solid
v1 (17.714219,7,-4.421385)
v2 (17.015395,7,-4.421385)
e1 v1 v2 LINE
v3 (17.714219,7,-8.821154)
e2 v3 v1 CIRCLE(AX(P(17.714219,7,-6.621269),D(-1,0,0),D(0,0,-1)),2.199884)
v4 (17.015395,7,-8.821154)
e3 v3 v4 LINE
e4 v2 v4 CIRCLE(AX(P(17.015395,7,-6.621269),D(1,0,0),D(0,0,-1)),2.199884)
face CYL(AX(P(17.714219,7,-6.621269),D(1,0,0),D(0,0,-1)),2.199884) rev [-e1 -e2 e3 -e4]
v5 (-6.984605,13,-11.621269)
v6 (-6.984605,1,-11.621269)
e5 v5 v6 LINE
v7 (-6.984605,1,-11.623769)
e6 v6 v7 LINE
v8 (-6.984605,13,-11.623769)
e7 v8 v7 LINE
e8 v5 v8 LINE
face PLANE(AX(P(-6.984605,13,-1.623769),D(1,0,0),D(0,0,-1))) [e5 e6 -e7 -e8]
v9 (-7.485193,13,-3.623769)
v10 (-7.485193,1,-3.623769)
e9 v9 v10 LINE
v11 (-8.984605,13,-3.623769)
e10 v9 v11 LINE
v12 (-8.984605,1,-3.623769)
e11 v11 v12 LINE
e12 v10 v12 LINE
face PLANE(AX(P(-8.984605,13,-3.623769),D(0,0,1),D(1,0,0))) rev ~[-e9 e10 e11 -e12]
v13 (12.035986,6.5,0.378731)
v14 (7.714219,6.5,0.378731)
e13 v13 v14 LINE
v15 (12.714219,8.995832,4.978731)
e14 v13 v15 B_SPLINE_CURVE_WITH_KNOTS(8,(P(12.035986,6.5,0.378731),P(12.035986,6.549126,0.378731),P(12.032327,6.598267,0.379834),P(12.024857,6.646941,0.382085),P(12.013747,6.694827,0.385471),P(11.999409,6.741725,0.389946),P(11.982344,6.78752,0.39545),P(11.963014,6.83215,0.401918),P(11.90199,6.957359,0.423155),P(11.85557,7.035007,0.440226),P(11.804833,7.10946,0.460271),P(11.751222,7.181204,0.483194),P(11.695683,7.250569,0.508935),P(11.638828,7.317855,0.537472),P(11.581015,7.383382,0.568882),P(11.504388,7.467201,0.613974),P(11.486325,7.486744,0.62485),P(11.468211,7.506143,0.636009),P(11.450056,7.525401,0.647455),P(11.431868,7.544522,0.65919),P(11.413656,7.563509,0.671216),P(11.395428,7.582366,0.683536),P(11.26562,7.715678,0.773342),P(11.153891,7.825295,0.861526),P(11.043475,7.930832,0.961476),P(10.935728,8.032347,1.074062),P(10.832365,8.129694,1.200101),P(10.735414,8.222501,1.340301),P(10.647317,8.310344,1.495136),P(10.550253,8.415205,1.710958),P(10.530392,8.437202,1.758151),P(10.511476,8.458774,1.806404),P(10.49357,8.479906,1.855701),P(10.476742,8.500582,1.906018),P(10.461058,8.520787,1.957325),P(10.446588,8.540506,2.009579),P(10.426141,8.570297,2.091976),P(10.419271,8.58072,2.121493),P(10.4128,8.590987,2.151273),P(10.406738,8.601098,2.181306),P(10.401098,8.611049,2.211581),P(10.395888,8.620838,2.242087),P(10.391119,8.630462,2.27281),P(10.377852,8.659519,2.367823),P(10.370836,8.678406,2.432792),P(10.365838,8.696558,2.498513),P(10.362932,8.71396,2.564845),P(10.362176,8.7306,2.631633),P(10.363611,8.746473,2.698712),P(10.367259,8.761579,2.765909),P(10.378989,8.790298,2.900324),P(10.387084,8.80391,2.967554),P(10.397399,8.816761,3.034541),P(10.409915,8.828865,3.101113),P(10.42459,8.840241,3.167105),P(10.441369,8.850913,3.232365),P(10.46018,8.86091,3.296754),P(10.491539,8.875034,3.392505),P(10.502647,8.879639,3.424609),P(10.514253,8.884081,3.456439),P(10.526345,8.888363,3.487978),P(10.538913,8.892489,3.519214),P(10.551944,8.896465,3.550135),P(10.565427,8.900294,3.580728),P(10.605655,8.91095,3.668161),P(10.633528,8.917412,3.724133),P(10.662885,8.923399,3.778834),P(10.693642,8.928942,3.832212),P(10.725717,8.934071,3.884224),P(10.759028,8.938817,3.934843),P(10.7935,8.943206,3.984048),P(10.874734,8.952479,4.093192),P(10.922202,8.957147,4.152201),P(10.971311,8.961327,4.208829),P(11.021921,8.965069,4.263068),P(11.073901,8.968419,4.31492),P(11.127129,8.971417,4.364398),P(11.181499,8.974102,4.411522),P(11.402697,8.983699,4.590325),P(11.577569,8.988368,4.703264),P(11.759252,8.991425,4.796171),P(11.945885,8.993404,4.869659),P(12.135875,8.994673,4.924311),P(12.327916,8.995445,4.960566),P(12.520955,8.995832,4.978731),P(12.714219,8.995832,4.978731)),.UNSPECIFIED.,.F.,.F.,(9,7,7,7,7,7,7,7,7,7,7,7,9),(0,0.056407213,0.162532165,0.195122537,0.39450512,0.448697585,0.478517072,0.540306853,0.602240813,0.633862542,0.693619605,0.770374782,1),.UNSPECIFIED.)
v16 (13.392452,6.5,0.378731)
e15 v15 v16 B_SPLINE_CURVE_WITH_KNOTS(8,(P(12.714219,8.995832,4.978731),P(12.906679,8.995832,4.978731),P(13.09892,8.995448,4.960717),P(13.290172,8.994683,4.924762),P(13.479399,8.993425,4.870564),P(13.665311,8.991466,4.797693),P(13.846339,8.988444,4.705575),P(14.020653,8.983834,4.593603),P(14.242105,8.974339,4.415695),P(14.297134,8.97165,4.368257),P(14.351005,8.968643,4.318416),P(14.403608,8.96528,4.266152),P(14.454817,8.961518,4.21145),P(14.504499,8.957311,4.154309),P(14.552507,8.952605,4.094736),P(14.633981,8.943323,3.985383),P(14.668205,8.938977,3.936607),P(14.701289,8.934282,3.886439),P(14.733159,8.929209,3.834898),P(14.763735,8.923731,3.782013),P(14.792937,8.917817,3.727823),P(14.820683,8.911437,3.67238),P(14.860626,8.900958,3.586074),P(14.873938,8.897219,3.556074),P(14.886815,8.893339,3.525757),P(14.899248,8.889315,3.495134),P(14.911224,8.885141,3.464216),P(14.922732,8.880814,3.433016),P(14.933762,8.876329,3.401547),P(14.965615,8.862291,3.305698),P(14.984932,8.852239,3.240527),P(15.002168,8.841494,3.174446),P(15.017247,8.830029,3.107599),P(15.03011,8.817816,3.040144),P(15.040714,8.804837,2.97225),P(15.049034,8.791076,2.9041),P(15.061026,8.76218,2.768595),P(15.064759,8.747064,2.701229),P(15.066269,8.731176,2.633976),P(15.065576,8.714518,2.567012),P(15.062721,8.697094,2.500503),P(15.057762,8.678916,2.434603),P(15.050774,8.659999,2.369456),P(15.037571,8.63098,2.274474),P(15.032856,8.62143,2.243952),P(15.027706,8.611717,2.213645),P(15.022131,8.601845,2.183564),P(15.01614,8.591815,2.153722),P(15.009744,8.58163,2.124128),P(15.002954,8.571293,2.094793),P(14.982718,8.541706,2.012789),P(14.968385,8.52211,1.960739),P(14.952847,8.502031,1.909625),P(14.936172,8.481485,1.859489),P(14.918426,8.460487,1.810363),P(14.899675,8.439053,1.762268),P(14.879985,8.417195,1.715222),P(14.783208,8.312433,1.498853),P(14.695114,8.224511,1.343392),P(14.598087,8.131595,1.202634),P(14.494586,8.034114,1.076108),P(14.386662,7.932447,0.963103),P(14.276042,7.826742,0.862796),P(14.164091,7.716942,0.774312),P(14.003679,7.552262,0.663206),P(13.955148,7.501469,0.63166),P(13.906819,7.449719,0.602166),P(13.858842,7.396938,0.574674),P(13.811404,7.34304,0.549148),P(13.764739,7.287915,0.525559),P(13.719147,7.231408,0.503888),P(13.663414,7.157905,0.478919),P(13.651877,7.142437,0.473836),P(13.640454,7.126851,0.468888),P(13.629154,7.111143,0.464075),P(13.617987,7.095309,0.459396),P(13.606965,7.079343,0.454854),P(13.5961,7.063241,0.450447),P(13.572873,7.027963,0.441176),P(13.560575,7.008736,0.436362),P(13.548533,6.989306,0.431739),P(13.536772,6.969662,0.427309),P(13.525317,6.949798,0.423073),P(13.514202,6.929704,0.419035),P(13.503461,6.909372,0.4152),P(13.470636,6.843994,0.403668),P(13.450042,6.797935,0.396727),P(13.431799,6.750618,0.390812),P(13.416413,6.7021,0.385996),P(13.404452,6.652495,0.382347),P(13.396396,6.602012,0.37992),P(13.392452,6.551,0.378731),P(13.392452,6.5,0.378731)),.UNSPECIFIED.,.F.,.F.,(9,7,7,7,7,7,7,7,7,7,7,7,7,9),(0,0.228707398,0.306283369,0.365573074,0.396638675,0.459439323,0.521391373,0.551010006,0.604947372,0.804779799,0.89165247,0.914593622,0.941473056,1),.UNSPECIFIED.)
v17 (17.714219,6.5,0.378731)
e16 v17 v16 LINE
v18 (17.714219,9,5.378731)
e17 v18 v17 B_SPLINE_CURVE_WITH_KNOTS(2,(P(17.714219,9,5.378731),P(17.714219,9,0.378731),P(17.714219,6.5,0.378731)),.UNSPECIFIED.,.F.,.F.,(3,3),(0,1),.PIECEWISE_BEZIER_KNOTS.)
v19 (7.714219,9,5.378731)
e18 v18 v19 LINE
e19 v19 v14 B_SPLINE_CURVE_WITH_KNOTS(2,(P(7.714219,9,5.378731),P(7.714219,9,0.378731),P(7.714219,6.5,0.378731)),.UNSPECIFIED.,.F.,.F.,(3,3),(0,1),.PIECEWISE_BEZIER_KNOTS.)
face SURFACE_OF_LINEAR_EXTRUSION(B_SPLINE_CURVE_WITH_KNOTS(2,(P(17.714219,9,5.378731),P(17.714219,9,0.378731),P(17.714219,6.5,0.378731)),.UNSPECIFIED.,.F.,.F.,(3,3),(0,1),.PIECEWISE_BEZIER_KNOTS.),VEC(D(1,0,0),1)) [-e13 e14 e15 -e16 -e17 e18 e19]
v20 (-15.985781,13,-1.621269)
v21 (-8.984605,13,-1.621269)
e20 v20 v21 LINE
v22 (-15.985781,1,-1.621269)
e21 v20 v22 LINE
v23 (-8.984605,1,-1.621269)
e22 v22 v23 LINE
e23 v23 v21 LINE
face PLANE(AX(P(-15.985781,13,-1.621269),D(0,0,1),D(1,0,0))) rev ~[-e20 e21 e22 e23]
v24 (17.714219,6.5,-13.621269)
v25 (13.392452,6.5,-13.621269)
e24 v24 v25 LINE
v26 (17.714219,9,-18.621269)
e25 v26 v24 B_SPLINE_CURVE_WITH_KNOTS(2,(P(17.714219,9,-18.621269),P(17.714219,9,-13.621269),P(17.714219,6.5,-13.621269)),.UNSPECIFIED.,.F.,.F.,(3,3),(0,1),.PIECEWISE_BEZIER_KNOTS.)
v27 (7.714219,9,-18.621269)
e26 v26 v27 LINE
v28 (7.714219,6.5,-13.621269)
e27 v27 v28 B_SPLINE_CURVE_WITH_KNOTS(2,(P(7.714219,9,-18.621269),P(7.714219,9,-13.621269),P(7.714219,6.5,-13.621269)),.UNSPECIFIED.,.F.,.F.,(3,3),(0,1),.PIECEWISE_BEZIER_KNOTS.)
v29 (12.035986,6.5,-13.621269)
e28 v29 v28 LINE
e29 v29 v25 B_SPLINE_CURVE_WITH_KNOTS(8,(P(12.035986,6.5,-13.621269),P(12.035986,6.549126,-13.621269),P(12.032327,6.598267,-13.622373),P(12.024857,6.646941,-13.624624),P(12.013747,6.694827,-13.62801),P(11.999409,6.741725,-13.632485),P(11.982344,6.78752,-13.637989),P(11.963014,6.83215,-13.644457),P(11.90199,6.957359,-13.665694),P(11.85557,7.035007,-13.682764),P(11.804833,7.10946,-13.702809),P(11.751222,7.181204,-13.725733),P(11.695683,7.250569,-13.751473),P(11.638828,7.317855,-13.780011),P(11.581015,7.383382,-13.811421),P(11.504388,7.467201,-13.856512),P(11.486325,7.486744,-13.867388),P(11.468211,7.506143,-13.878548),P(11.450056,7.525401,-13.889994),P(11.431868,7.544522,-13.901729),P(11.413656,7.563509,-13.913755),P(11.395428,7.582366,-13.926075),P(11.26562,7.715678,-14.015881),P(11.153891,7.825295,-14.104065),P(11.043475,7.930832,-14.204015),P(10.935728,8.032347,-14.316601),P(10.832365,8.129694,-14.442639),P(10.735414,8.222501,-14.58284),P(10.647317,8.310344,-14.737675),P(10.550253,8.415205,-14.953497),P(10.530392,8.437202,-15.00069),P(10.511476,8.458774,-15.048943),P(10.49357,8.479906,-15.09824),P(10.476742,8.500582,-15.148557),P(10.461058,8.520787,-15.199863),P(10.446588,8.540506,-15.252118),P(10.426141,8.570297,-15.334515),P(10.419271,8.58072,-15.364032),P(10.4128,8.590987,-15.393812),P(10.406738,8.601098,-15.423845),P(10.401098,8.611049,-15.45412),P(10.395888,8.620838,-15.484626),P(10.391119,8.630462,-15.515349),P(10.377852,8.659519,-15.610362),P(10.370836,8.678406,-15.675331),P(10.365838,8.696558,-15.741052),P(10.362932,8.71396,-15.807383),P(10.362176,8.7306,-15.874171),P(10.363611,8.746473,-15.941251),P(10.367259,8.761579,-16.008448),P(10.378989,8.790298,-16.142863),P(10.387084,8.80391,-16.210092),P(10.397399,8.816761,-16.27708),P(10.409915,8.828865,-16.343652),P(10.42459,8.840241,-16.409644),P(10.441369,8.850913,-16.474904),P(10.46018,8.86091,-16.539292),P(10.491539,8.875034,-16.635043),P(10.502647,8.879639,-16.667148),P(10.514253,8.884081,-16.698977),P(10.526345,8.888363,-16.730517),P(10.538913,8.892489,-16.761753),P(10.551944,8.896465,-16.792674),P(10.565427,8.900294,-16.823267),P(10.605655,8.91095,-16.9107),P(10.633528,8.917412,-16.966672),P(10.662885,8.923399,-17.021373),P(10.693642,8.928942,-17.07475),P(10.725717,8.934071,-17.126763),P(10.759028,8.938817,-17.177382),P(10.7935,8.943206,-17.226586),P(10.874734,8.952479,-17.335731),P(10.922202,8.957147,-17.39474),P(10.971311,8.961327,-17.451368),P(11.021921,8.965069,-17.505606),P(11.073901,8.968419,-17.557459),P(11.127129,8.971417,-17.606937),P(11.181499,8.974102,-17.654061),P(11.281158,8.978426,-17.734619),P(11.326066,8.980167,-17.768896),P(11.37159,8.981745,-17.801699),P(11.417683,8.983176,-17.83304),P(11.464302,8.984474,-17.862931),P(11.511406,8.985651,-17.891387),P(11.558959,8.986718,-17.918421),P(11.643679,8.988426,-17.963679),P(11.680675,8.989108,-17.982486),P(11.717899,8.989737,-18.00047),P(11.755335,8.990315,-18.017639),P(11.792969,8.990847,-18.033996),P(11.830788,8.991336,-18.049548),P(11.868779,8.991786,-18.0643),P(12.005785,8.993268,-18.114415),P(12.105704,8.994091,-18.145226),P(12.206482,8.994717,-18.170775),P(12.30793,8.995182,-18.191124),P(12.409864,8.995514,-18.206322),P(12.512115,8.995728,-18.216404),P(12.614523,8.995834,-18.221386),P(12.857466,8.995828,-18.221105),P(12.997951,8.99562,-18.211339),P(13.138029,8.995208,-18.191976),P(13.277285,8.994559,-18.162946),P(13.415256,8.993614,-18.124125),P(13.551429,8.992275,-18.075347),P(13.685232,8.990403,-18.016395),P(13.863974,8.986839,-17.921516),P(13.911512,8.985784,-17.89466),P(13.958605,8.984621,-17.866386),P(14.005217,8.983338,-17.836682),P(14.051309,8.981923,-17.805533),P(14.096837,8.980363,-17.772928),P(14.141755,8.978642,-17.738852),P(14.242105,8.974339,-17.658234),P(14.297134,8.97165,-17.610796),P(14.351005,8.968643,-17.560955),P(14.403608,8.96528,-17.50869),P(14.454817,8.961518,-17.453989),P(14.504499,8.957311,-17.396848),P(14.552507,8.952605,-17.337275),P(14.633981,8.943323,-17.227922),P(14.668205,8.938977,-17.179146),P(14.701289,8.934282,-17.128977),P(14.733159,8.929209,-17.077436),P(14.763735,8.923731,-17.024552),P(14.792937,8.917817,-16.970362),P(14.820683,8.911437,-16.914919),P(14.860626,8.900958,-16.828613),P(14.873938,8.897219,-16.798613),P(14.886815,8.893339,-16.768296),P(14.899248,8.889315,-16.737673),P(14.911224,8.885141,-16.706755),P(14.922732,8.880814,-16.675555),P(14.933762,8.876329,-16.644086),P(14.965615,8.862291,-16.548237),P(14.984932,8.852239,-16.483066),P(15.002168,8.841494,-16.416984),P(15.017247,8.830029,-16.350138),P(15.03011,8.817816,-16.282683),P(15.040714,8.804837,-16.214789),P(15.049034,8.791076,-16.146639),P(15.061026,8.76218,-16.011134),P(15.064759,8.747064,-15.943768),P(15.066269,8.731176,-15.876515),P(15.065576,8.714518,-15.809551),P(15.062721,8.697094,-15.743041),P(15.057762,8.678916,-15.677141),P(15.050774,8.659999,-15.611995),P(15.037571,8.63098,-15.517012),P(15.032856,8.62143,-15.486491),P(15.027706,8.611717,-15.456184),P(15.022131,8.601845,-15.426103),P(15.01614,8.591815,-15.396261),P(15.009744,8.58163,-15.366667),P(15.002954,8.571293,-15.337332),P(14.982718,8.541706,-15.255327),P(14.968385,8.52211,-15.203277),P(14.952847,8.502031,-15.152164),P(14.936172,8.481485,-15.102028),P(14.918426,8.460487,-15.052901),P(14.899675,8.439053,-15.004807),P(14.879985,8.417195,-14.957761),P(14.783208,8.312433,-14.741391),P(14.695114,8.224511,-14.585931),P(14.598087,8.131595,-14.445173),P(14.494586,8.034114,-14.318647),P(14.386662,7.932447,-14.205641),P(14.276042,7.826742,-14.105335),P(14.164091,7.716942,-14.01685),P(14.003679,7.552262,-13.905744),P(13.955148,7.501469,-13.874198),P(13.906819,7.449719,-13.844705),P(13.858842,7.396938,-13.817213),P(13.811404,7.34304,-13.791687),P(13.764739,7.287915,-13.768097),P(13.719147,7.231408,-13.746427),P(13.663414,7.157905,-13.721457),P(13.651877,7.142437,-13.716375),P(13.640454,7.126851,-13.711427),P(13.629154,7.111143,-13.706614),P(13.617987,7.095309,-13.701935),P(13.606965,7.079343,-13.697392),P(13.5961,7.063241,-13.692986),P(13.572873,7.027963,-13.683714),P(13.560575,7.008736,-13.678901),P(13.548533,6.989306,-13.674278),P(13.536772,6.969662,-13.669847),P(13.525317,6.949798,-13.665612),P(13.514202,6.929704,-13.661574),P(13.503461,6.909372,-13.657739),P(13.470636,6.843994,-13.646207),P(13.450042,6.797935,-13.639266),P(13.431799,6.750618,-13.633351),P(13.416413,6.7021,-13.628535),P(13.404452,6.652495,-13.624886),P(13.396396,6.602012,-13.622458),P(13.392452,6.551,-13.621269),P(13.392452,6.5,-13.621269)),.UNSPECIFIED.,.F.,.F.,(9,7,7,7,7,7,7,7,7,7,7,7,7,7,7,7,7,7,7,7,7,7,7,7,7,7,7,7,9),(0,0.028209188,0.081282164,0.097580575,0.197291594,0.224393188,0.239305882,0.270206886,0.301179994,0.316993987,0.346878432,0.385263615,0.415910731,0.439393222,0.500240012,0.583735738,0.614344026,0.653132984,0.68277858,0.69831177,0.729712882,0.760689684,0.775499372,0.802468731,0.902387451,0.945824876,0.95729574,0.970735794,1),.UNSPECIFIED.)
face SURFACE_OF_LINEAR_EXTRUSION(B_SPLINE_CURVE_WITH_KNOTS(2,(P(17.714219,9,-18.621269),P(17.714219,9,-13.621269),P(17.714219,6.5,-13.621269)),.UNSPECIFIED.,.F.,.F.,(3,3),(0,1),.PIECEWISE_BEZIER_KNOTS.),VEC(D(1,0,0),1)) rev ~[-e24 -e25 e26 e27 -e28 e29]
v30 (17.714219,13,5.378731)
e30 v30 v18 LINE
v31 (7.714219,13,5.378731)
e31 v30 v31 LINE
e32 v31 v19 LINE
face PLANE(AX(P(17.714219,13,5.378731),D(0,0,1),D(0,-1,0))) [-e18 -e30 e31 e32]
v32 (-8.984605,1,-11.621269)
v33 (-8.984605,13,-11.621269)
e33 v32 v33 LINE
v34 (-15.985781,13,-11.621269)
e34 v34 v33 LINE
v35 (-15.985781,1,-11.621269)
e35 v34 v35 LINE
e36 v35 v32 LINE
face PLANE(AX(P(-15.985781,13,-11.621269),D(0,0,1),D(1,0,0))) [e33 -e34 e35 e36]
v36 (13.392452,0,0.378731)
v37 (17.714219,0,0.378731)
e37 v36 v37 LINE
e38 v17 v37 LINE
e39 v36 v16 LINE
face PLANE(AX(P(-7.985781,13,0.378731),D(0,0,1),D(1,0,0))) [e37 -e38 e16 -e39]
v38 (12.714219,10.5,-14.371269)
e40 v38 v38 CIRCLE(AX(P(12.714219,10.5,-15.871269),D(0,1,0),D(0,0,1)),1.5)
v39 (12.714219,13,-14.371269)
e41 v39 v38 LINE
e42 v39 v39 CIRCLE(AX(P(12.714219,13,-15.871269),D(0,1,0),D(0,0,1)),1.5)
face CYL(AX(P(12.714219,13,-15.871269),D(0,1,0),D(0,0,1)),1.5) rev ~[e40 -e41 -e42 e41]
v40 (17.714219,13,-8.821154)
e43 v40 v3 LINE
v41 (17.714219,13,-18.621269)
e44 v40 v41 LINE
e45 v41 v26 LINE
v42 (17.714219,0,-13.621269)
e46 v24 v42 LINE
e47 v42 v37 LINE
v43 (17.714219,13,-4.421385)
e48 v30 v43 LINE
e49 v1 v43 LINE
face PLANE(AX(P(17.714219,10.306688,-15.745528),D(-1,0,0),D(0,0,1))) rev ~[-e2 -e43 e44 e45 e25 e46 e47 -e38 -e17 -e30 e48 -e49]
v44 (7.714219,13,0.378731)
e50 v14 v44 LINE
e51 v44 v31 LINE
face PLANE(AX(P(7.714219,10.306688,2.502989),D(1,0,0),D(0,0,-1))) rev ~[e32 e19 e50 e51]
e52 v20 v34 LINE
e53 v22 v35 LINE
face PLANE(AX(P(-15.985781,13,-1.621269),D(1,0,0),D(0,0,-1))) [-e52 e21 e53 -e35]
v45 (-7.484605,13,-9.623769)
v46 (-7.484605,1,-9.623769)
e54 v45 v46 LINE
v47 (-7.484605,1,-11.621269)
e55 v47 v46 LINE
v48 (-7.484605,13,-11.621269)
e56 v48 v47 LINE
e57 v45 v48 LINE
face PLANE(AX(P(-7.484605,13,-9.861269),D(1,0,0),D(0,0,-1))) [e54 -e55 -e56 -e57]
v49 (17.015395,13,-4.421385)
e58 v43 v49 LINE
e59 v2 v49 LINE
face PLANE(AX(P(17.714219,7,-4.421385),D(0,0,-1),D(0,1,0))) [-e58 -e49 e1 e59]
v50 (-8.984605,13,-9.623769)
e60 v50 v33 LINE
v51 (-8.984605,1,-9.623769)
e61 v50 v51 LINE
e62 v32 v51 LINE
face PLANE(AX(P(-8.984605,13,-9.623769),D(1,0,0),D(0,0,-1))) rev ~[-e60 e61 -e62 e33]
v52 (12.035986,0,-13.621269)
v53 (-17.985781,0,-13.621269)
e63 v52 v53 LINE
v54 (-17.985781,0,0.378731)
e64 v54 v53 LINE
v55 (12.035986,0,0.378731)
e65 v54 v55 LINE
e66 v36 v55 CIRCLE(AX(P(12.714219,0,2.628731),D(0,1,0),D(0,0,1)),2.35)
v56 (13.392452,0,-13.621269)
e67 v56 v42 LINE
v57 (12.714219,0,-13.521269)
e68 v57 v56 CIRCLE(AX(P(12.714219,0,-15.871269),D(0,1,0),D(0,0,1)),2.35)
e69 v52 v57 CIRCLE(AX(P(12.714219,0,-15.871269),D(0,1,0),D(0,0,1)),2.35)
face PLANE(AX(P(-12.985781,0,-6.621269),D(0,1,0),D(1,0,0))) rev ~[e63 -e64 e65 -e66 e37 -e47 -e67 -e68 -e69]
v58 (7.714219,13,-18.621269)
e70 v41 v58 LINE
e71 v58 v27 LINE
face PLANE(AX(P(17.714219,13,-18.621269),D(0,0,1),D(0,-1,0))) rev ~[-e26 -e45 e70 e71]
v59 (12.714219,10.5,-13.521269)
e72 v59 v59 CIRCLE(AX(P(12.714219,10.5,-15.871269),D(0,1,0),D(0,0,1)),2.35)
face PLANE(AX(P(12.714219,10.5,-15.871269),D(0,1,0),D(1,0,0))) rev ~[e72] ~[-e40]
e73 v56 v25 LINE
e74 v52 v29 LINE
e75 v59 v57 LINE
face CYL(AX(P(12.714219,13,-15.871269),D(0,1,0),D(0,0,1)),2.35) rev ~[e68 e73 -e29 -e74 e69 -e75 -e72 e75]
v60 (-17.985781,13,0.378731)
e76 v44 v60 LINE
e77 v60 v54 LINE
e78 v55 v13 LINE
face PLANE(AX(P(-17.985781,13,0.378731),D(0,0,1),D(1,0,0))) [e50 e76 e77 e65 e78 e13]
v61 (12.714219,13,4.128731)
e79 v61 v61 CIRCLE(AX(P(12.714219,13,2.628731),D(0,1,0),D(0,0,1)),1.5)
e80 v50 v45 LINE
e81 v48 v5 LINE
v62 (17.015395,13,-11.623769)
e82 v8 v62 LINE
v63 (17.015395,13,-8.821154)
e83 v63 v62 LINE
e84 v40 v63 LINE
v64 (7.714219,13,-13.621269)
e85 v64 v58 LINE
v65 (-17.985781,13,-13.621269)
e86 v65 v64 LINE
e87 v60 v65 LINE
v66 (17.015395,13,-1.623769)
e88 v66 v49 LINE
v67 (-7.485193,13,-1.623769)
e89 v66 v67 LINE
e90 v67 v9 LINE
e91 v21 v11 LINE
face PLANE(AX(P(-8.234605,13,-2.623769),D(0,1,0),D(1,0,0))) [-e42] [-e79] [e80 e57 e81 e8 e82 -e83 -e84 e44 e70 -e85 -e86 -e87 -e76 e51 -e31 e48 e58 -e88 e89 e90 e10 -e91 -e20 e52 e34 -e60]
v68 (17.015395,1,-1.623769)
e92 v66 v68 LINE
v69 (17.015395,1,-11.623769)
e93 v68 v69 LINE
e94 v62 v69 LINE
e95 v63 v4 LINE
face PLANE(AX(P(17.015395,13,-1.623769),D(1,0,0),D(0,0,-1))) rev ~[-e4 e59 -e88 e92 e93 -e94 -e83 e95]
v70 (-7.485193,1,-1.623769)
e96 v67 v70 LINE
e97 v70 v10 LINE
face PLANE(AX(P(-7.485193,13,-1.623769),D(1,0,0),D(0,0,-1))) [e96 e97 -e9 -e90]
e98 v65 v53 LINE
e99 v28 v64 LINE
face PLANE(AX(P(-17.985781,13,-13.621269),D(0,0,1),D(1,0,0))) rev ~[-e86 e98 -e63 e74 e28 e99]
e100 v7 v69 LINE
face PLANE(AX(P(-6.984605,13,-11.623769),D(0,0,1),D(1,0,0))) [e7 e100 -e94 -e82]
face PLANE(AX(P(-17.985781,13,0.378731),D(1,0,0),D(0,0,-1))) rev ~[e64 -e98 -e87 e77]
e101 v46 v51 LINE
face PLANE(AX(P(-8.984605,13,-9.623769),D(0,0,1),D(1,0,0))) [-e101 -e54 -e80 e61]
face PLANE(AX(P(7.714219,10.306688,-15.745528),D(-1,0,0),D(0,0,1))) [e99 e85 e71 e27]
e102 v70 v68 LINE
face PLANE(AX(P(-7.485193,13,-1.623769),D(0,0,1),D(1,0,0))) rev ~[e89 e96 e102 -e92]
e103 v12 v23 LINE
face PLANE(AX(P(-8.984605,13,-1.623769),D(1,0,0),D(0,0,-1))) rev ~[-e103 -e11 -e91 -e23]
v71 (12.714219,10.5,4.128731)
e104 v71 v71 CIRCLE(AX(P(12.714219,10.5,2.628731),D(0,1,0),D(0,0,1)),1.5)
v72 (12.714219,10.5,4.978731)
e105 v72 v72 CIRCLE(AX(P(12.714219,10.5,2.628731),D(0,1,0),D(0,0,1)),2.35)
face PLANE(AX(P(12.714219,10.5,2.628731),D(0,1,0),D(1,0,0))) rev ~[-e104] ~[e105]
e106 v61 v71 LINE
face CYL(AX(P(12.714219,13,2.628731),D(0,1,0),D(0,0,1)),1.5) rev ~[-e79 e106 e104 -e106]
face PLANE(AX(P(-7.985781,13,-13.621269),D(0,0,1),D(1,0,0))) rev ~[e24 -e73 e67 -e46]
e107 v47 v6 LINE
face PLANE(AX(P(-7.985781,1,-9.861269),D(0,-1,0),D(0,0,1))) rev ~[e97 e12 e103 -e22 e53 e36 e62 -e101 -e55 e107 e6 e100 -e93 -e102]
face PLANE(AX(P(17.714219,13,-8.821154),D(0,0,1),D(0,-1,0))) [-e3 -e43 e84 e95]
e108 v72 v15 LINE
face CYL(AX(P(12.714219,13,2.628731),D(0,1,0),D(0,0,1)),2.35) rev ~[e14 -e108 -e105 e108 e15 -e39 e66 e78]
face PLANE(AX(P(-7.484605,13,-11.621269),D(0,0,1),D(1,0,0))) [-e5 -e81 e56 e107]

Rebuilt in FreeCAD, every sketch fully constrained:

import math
import FreeCAD as App
import Part
import Sketcher

V = App.Vector
Q = App.Units.Quantity

doc = App.newDocument("Part")
params = doc.addObject("Spreadsheet::Sheet", "Params")
for row, (alias, value) in enumerate([
    ("sketch1_height", "16 mm"),
    ("sketch1_width", "25.7 mm"),
    ("pad1_length", "13 mm"),
    ("sketch2_width", "24 mm"),
    ("sketch2_height", "10 mm"),
    ("pocket1_length", "12 mm"),
    ("sketch3_width", "12 mm"),
    ("sketch3_height", "6 mm"),
    ("pocket2_length", "12 mm"),
    ("sketch4_height", "13 mm"),
    ("sketch4_width", "25.7 mm"),
    ("pocket3_length", "1 mm"),
    ("sketch5_height", "13 mm"),
    ("sketch5_width", "25.7 mm"),
    ("pocket4_length", "1 mm"),
    ("sketch6_width", "25.7 mm"),
    ("sketch6_height", "0.24 mm"),
    ("sketch7_width", "25.7 mm"),
    ("sketch7_height", "0.24 mm"),
    ("pad2_length", "13 mm"),
    ("sketch8_width", "4 mm"),
    ("pad3_length", "10 mm"),
    ("sketch9_diameter", "4.7 mm"),
    ("sketch10_diameter", "4.8 mm"),
    ("sketch10_diameter2", "4.9 mm"),
    ("pad4_length", "2.5 mm"),
    ("sketch11_diameter", "3 mm"),
    ("sketch12_width", "10 mm"),
    ("sketch12_height", "14 mm"),
    ("pad5_length", "13 mm"),
    ("sketch13_width", "8 mm"),
    ("sketch13_height", "10 mm"),
    ("pocket8_length", "12 mm"),
    ("sketch14_height", "2 mm"),
    ("sketch14_width", "1.5 mm"),
    ("pad6_length", "13 mm"),
    ("sketch15_height", "2 mm"),
    ("sketch15_width", "0.5 mm"),
    ("sketch15_height2", "1.76 mm"),
    ("pocket9_length", "12 mm"),
    ("pad7_length", "12 mm"),
    ("sketch17_width", "6 mm"),
    ("pocket10_length", "12 mm"),
], start=1):
    params.set(f"A{row}", alias)
    params.set(f"B{row}", "=" + value)
    params.setAlias(f"B{row}", alias)

body = doc.addObject("PartDesign::Body", "Body")

sketch1 = body.newObject("Sketcher::SketchObject", "Sketch")
sketch1.AttachmentSupport = (doc.getObject("XZ_Plane"), [""])
sketch1.MapMode = "FlatFace"
sketch1.addGeometry([
    Part.LineSegment(V(-7.985781, -14.861269, 0), V(-7.985781, 1.138731, 0)),
    Part.LineSegment(V(-7.985781, 1.138731, 0), V(17.714219, 1.138731, 0)),
    Part.LineSegment(V(17.714219, 1.138731, 0), V(17.714219, -14.861269, 0)),
    Part.LineSegment(V(17.714219, -14.861269, 0), V(-7.985781, -14.861269, 0)),
], False)
sketch1.addConstraint([
    Sketcher.Constraint("Coincident", 0, 2, 1, 1),
    Sketcher.Constraint("Coincident", 1, 2, 2, 1),
    Sketcher.Constraint("Coincident", 2, 2, 3, 1),
    Sketcher.Constraint("Coincident", 3, 2, 0, 1),
    Sketcher.Constraint("Vertical", 0),
    Sketcher.Constraint("Horizontal", 1),
    Sketcher.Constraint("Vertical", 2),
    Sketcher.Constraint("Horizontal", 3),
    Sketcher.Constraint("DistanceY", 0, 1, 0, 2, Q("16 mm")),
    Sketcher.Constraint("DistanceX", 1, 1, 1, 2, Q("25.7 mm")),
    Sketcher.Constraint("DistanceX", 0, 2, -1, 1, Q("7.985781 mm")),
    Sketcher.Constraint("DistanceY", -1, 1, 0, 2, Q("1.138731 mm")),
])
sketch1.setExpression("Constraints[8]", "Params.sketch1_height")
sketch1.setExpression("Constraints[9]", "Params.sketch1_width")
pad1 = body.newObject("PartDesign::Pad", "Pad")
pad1.Profile = sketch1
pad1.setExpression("Length", "Params.pad1_length")
pad1.Reversed = True

sketch2 = body.newObject("Sketcher::SketchObject", "Sketch001")
sketch2.AttachmentSupport = (doc.getObject("XZ_Plane"), [""])
sketch2.MapMode = "FlatFace"
sketch2.AttachmentOffset = App.Placement(V(0, 0, -13), App.Rotation())
sketch2.addGeometry([
    Part.LineSegment(V(-6.984605, -11.623769, 0), V(-6.984605, -1.623769, 0)),
    Part.LineSegment(V(-6.984605, -1.623769, 0), V(17.015395, -1.623769, 0)),
    Part.LineSegment(V(17.015395, -1.623769, 0), V(17.015395, -11.623769, 0)),
    Part.LineSegment(V(17.015395, -11.623769, 0), V(-6.984605, -11.623769, 0)),
], False)
sketch2.addConstraint([
    Sketcher.Constraint("Coincident", 0, 2, 1, 1),
    Sketcher.Constraint("Coincident", 1, 2, 2, 1),
    Sketcher.Constraint("Coincident", 2, 2, 3, 1),
    Sketcher.Constraint("Coincident", 3, 2, 0, 1),
    Sketcher.Constraint("Vertical", 0),
    Sketcher.Constraint("Horizontal", 1),
    Sketcher.Constraint("Vertical", 2),
    Sketcher.Constraint("Horizontal", 3),
    Sketcher.Constraint("DistanceX", 1, 1, 1, 2, Q("24 mm")),
    Sketcher.Constraint("DistanceY", 0, 1, 0, 2, Q("10 mm")),
    Sketcher.Constraint("DistanceY", 0, 2, -1, 1, Q("1.623769 mm")),
    Sketcher.Constraint("DistanceX", 0, 2, -1, 1, Q("6.984605 mm")),
])
sketch2.setExpression("Constraints[8]", "Params.sketch2_width")
sketch2.setExpression("Constraints[9]", "Params.sketch2_height")
pocket1 = body.newObject("PartDesign::Pocket", "Pocket")
pocket1.Profile = sketch2
pocket1.setExpression("Length", "Params.pocket1_length")
pocket1.Reversed = True

sketch3 = body.newObject("Sketcher::SketchObject", "Sketch002")
sketch3.AttachmentSupport = (doc.getObject("YZ_Plane"), [""])
sketch3.MapMode = "FlatFace"
sketch3.AttachmentOffset = App.Placement(V(0, 0, -7.985781), App.Rotation())
sketch3.addGeometry([
    Part.LineSegment(V(13, -9.861269, 0), V(1, -9.861269, 0)),
    Part.LineSegment(V(1, -9.861269, 0), V(1, -3.861269, 0)),
    Part.LineSegment(V(1, -3.861269, 0), V(13, -3.861269, 0)),
    Part.LineSegment(V(13, -3.861269, 0), V(13, -9.861269, 0)),
], False)
sketch3.addConstraint([
    Sketcher.Constraint("Coincident", 0, 2, 1, 1),
    Sketcher.Constraint("Coincident", 1, 2, 2, 1),
    Sketcher.Constraint("Coincident", 2, 2, 3, 1),
    Sketcher.Constraint("Coincident", 3, 2, 0, 1),
    Sketcher.Constraint("Horizontal", 0),
    Sketcher.Constraint("Vertical", 1),
    Sketcher.Constraint("Horizontal", 2),
    Sketcher.Constraint("Vertical", 3),
    Sketcher.Constraint("DistanceX", 0, 2, 0, 1, Q("12 mm")),
    Sketcher.Constraint("DistanceY", 1, 1, 1, 2, Q("6 mm")),
    Sketcher.Constraint("DistanceX", -1, 1, 0, 2, Q("1 mm")),
    Sketcher.Constraint("DistanceY", 0, 2, -1, 1, Q("9.861269 mm")),
])
sketch3.setExpression("Constraints[8]", "Params.sketch3_width")
sketch3.setExpression("Constraints[9]", "Params.sketch3_height")
pocket2 = body.newObject("PartDesign::Pocket", "Pocket001")
pocket2.Profile = sketch3
pocket2.setExpression("Length", "Params.pocket2_length")
pocket2.Reversed = True

sketch4 = body.newObject("Sketcher::SketchObject", "Sketch003")
sketch4.AttachmentSupport = (doc.getObject("XY_Plane"), [""])
sketch4.MapMode = "FlatFace"
sketch4.AttachmentOffset = App.Placement(V(0, 0, -14.861269), App.Rotation())
sketch4.addGeometry([
    Part.LineSegment(V(17.714219, 13, 0), V(17.714219, 0, 0)),
    Part.LineSegment(V(17.714219, 0, 0), V(-7.985781, 0, 0)),
    Part.LineSegment(V(-7.985781, 0, 0), V(-7.985781, 13, 0)),
    Part.LineSegment(V(-7.985781, 13, 0), V(17.714219, 13, 0)),
], False)
sketch4.addConstraint([
    Sketcher.Constraint("Coincident", 0, 2, 1, 1),
    Sketcher.Constraint("Coincident", 1, 2, 2, 1),
    Sketcher.Constraint("Coincident", 2, 2, 3, 1),
    Sketcher.Constraint("Coincident", 3, 2, 0, 1),
    Sketcher.Constraint("Vertical", 0),
    Sketcher.Constraint("Horizontal", 1),
    Sketcher.Constraint("Vertical", 2),
    Sketcher.Constraint("Horizontal", 3),
    Sketcher.Constraint("PointOnObject", 0, 2, -1),
    Sketcher.Constraint("DistanceY", 0, 2, 0, 1, Q("13 mm")),
    Sketcher.Constraint("DistanceX", 1, 2, 1, 1, Q("25.7 mm")),
    Sketcher.Constraint("DistanceX", -1, 1, 0, 2, Q("17.714219 mm")),
])
sketch4.setExpression("Constraints[9]", "Params.sketch4_height")
sketch4.setExpression("Constraints[10]", "Params.sketch4_width")
pocket3 = body.newObject("PartDesign::Pocket", "Pocket002")
pocket3.Profile = sketch4
pocket3.setExpression("Length", "Params.pocket3_length")
pocket3.Reversed = True

sketch5 = body.newObject("Sketcher::SketchObject", "Sketch004")
sketch5.AttachmentSupport = (doc.getObject("XY_Plane"), [""])
sketch5.MapMode = "FlatFace"
sketch5.AttachmentOffset = App.Placement(V(0, 0, 1.138731), App.Rotation())
sketch5.addGeometry([
    Part.LineSegment(V(-7.985781, 13, 0), V(-7.985781, 0, 0)),
    Part.LineSegment(V(-7.985781, 0, 0), V(17.714219, 0, 0)),
    Part.LineSegment(V(17.714219, 0, 0), V(17.714219, 13, 0)),
    Part.LineSegment(V(17.714219, 13, 0), V(-7.985781, 13, 0)),
], False)
sketch5.addConstraint([
    Sketcher.Constraint("Coincident", 0, 2, 1, 1),
    Sketcher.Constraint("Coincident", 1, 2, 2, 1),
    Sketcher.Constraint("Coincident", 2, 2, 3, 1),
    Sketcher.Constraint("Coincident", 3, 2, 0, 1),
    Sketcher.Constraint("Vertical", 0),
    Sketcher.Constraint("Horizontal", 1),
    Sketcher.Constraint("Vertical", 2),
    Sketcher.Constraint("Horizontal", 3),
    Sketcher.Constraint("PointOnObject", 0, 2, -1),
    Sketcher.Constraint("DistanceY", 0, 2, 0, 1, Q("13 mm")),
    Sketcher.Constraint("DistanceX", 1, 1, 1, 2, Q("25.7 mm")),
    Sketcher.Constraint("DistanceX", 0, 2, -1, 1, Q("7.985781 mm")),
])
sketch5.setExpression("Constraints[9]", "Params.sketch5_height")
sketch5.setExpression("Constraints[10]", "Params.sketch5_width")
pocket4 = body.newObject("PartDesign::Pocket", "Pocket003")
pocket4.Profile = sketch5
pocket4.setExpression("Length", "Params.pocket4_length")

sketch6 = body.newObject("Sketcher::SketchObject", "Sketch005")
sketch6.AttachmentSupport = (doc.getObject("XZ_Plane"), [""])
sketch6.MapMode = "FlatFace"
sketch6.AttachmentOffset = App.Placement(V(0, 0, -13), App.Rotation())
sketch6.addGeometry([
    Part.LineSegment(V(-7.985781, -13.861269, 0), V(-7.985781, -13.621269, 0)),
    Part.LineSegment(V(-7.985781, -13.621269, 0), V(17.714219, -13.621269, 0)),
    Part.LineSegment(V(17.714219, -13.621269, 0), V(17.714219, -13.861269, 0)),
    Part.LineSegment(V(17.714219, -13.861269, 0), V(-7.985781, -13.861269, 0)),
], False)
sketch6.addConstraint([
    Sketcher.Constraint("Coincident", 0, 2, 1, 1),
    Sketcher.Constraint("Coincident", 1, 2, 2, 1),
    Sketcher.Constraint("Coincident", 2, 2, 3, 1),
    Sketcher.Constraint("Coincident", 3, 2, 0, 1),
    Sketcher.Constraint("Vertical", 0),
    Sketcher.Constraint("Horizontal", 1),
    Sketcher.Constraint("Vertical", 2),
    Sketcher.Constraint("Horizontal", 3),
    Sketcher.Constraint("DistanceX", 1, 1, 1, 2, Q("25.7 mm")),
    Sketcher.Constraint("DistanceY", 0, 1, 0, 2, Q("0.24 mm")),
    Sketcher.Constraint("DistanceX", 0, 2, -1, 1, Q("7.985781 mm")),
    Sketcher.Constraint("DistanceY", 0, 2, -1, 1, Q("13.621269 mm")),
])
sketch6.setExpression("Constraints[8]", "Params.sketch6_width")
sketch6.setExpression("Constraints[9]", "Params.sketch6_height")
pocket5 = body.newObject("PartDesign::Pocket", "Pocket004")
pocket5.Profile = sketch6
pocket5.Type = "ThroughAll"
pocket5.Reversed = True

sketch7 = body.newObject("Sketcher::SketchObject", "Sketch006")
sketch7.AttachmentSupport = (doc.getObject("XZ_Plane"), [""])
sketch7.MapMode = "FlatFace"
sketch7.AttachmentOffset = App.Placement(V(0, 0, -13), App.Rotation())
sketch7.addGeometry([
    Part.LineSegment(V(-7.985781, 0.138731, 0), V(-7.985781, 0.378731, 0)),
    Part.LineSegment(V(-7.985781, 0.378731, 0), V(17.714219, 0.378731, 0)),
    Part.LineSegment(V(17.714219, 0.378731, 0), V(17.714219, 0.138731, 0)),
    Part.LineSegment(V(17.714219, 0.138731, 0), V(-7.985781, 0.138731, 0)),
], False)
sketch7.addConstraint([
    Sketcher.Constraint("Coincident", 0, 2, 1, 1),
    Sketcher.Constraint("Coincident", 1, 2, 2, 1),
    Sketcher.Constraint("Coincident", 2, 2, 3, 1),
    Sketcher.Constraint("Coincident", 3, 2, 0, 1),
    Sketcher.Constraint("Vertical", 0),
    Sketcher.Constraint("Horizontal", 1),
    Sketcher.Constraint("Vertical", 2),
    Sketcher.Constraint("Horizontal", 3),
    Sketcher.Constraint("DistanceX", 1, 1, 1, 2, Q("25.7 mm")),
    Sketcher.Constraint("DistanceY", 0, 1, 0, 2, Q("0.24 mm")),
    Sketcher.Constraint("DistanceX", 0, 2, -1, 1, Q("7.985781 mm")),
    Sketcher.Constraint("DistanceY", -1, 1, 0, 2, Q("0.378731 mm")),
])
sketch7.setExpression("Constraints[8]", "Params.sketch7_width")
sketch7.setExpression("Constraints[9]", "Params.sketch7_height")
pad2 = body.newObject("PartDesign::Pad", "Pad001")
pad2.Profile = sketch7
pad2.setExpression("Length", "Params.pad2_length")

sketch8 = body.newObject("Sketcher::SketchObject", "Sketch007")
sketch8.AttachmentSupport = (doc.getObject("YZ_Plane"), [""])
sketch8.MapMode = "FlatFace"
sketch8.AttachmentOffset = App.Placement(V(0, 0, 17.714219), App.Rotation())
sketch8.addGeometry([
    Part.LineSegment(V(13, -18.621269, 0), V(13, -13.621269, 0)),
    Part.LineSegment(V(13, -13.621269, 0), V(6.5, -13.621269, 0)),
    Part.BSplineCurve([V(9, -18.621269, 0), V(9, -13.621269, 0), V(6.5, -13.621269, 0)], [3, 3], [0, 1], False, 2, [1, 1, 1], False),
    Part.LineSegment(V(9, -18.621269, 0), V(13, -18.621269, 0)),
    Part.LineSegment(V(13, 0.378731, 0), V(13, 5.378731, 0)),
    Part.LineSegment(V(13, 5.378731, 0), V(9, 5.378731, 0)),
    Part.BSplineCurve([V(9, 5.378731, 0), V(9, 0.378731, 0), V(6.5, 0.378731, 0)], [3, 3], [0, 1], False, 2, [1, 1, 1], False),
    Part.LineSegment(V(6.5, 0.378731, 0), V(13, 0.378731, 0)),
], False)
sketch8.addConstraint([
    Sketcher.Constraint("Block", 2),
    Sketcher.Constraint("Block", 6),
    Sketcher.Constraint("Coincident", 0, 2, 1, 1),
    Sketcher.Constraint("Coincident", 1, 2, 2, 2),
    Sketcher.Constraint("Coincident", 2, 1, 3, 1),
    Sketcher.Constraint("Coincident", 3, 2, 0, 1),
    Sketcher.Constraint("Coincident", 4, 2, 5, 1),
    Sketcher.Constraint("Coincident", 5, 2, 6, 1),
    Sketcher.Constraint("Coincident", 6, 2, 7, 1),
    Sketcher.Constraint("Coincident", 7, 2, 4, 1),
    Sketcher.Constraint("Vertical", 0),
    Sketcher.Constraint("Horizontal", 1),
    Sketcher.Constraint("Horizontal", 3),
    Sketcher.Constraint("Vertical", 4),
    Sketcher.Constraint("Horizontal", 5),
    Sketcher.Constraint("Horizontal", 7),
    Sketcher.Constraint("Vertical", 3, 2, 4, 2),
    Sketcher.Constraint("DistanceX", 3, 1, 3, 2, Q("4 mm")),
])
sketch8.setExpression("Constraints[17]", "Params.sketch8_width")
pad3 = body.newObject("PartDesign::Pad", "Pad002")
pad3.Profile = sketch8
pad3.setExpression("Length", "Params.pad3_length")
pad3.Reversed = True

sketch9 = body.newObject("Sketcher::SketchObject", "Sketch008")
sketch9.AttachmentSupport = (doc.getObject("XZ_Plane"), [""])
sketch9.MapMode = "FlatFace"
sketch9.AttachmentOffset = App.Placement(V(0, 0, -13), App.Rotation())
sketch9.addGeometry([
    Part.Circle(V(12.714219, -15.871269, 0), V(0, 0, 1), 2.35),
    Part.Circle(V(12.714219, 2.628731, 0), V(0, 0, 1), 2.35),
], False)
sketch9.addConstraint([
    Sketcher.Constraint("Equal", 0, 1),
    Sketcher.Constraint("Vertical", 0, 3, 1, 3),
    Sketcher.Constraint("Diameter", 0, Q("4.7 mm")),
    Sketcher.Constraint("DistanceY", 0, 3, 1, 3, Q("18.5 mm")),
    Sketcher.Constraint("DistanceX", -1, 1, 0, 3, Q("12.714219 mm")),
    Sketcher.Constraint("DistanceY", 0, 3, -1, 1, Q("15.871269 mm")),
])
sketch9.setExpression("Constraints[2]", "Params.sketch9_diameter")
pocket6 = body.newObject("PartDesign::Pocket", "Pocket005")
pocket6.Profile = sketch9
pocket6.Type = "ThroughAll"
pocket6.Reversed = True

sketch10 = body.newObject("Sketcher::SketchObject", "Sketch009")
sketch10.AttachmentSupport = (doc.getObject("XZ_Plane"), [""])
sketch10.MapMode = "FlatFace"
sketch10.AttachmentOffset = App.Placement(V(0, 0, -13), App.Rotation())
sketch10.addGeometry([
    Part.Circle(V(12.714219, -15.871269, 0), V(0, 0, 1), 2.4),
    Part.Circle(V(12.714219, 2.628731, 0), V(0, 0, 1), 2.45),
], False)
sketch10.addConstraint([
    Sketcher.Constraint("Vertical", 0, 3, 1, 3),
    Sketcher.Constraint("Diameter", 0, Q("4.8 mm")),
    Sketcher.Constraint("Diameter", 1, Q("4.9 mm")),
    Sketcher.Constraint("DistanceY", 0, 3, 1, 3, Q("18.5 mm")),
    Sketcher.Constraint("DistanceX", -1, 1, 0, 3, Q("12.714219 mm")),
    Sketcher.Constraint("DistanceY", 0, 3, -1, 1, Q("15.871269 mm")),
])
sketch10.setExpression("Constraints[1]", "Params.sketch10_diameter")
sketch10.setExpression("Constraints[2]", "Params.sketch10_diameter2")
pad4 = body.newObject("PartDesign::Pad", "Pad003")
pad4.Profile = sketch10
pad4.setExpression("Length", "Params.pad4_length")

sketch11 = body.newObject("Sketcher::SketchObject", "Sketch010")
sketch11.AttachmentSupport = (doc.getObject("XZ_Plane"), [""])
sketch11.MapMode = "FlatFace"
sketch11.AttachmentOffset = App.Placement(V(0, 0, -13), App.Rotation())
sketch11.addGeometry([
    Part.Circle(V(12.714219, -15.871269, 0), V(0, 0, 1), 1.5),
    Part.Circle(V(12.714219, 2.628731, 0), V(0, 0, 1), 1.5),
], False)
sketch11.addConstraint([
    Sketcher.Constraint("Equal", 0, 1),
    Sketcher.Constraint("Vertical", 0, 3, 1, 3),
    Sketcher.Constraint("Diameter", 0, Q("3 mm")),
    Sketcher.Constraint("DistanceY", 0, 3, 1, 3, Q("18.5 mm")),
    Sketcher.Constraint("DistanceX", -1, 1, 0, 3, Q("12.714219 mm")),
    Sketcher.Constraint("DistanceY", 0, 3, -1, 1, Q("15.871269 mm")),
])
sketch11.setExpression("Constraints[2]", "Params.sketch11_diameter")
pocket7 = body.newObject("PartDesign::Pocket", "Pocket006")
pocket7.Profile = sketch11
pocket7.Type = "ThroughAll"
pocket7.Reversed = True

sketch12 = body.newObject("Sketcher::SketchObject", "Sketch011")
sketch12.AttachmentSupport = (doc.getObject("XZ_Plane"), [""])
sketch12.MapMode = "FlatFace"
sketch12.AttachmentOffset = App.Placement(V(0, 0, -13), App.Rotation())
sketch12.addGeometry([
    Part.LineSegment(V(-17.985781, -13.621269, 0), V(-17.985781, 0.378731, 0)),
    Part.LineSegment(V(-17.985781, 0.378731, 0), V(-7.985781, 0.378731, 0)),
    Part.LineSegment(V(-7.985781, 0.378731, 0), V(-7.985781, -13.621269, 0)),
    Part.LineSegment(V(-7.985781, -13.621269, 0), V(-17.985781, -13.621269, 0)),
], False)
sketch12.addConstraint([
    Sketcher.Constraint("Coincident", 0, 2, 1, 1),
    Sketcher.Constraint("Coincident", 1, 2, 2, 1),
    Sketcher.Constraint("Coincident", 2, 2, 3, 1),
    Sketcher.Constraint("Coincident", 3, 2, 0, 1),
    Sketcher.Constraint("Vertical", 0),
    Sketcher.Constraint("Horizontal", 1),
    Sketcher.Constraint("Vertical", 2),
    Sketcher.Constraint("Horizontal", 3),
    Sketcher.Constraint("DistanceX", 1, 1, 1, 2, Q("10 mm")),
    Sketcher.Constraint("DistanceY", 0, 1, 0, 2, Q("14 mm")),
    Sketcher.Constraint("DistanceX", 0, 2, -1, 1, Q("17.985781 mm")),
    Sketcher.Constraint("DistanceY", -1, 1, 0, 2, Q("0.378731 mm")),
])
sketch12.setExpression("Constraints[8]", "Params.sketch12_width")
sketch12.setExpression("Constraints[9]", "Params.sketch12_height")
pad5 = body.newObject("PartDesign::Pad", "Pad004")
pad5.Profile = sketch12
pad5.setExpression("Length", "Params.pad5_length")

sketch13 = body.newObject("Sketcher::SketchObject", "Sketch012")
sketch13.AttachmentSupport = (doc.getObject("XZ_Plane"), [""])
sketch13.MapMode = "FlatFace"
sketch13.AttachmentOffset = App.Placement(V(0, 0, -13), App.Rotation())
sketch13.addGeometry([
    Part.LineSegment(V(-15.985781, -11.621269, 0), V(-15.985781, -1.621269, 0)),
    Part.LineSegment(V(-15.985781, -1.621269, 0), V(-7.985781, -1.621269, 0)),
    Part.LineSegment(V(-7.985781, -1.621269, 0), V(-7.985781, -11.621269, 0)),
    Part.LineSegment(V(-7.985781, -11.621269, 0), V(-15.985781, -11.621269, 0)),
], False)
sketch13.addConstraint([
    Sketcher.Constraint("Coincident", 0, 2, 1, 1),
    Sketcher.Constraint("Coincident", 1, 2, 2, 1),
    Sketcher.Constraint("Coincident", 2, 2, 3, 1),
    Sketcher.Constraint("Coincident", 3, 2, 0, 1),
    Sketcher.Constraint("Vertical", 0),
    Sketcher.Constraint("Horizontal", 1),
    Sketcher.Constraint("Vertical", 2),
    Sketcher.Constraint("Horizontal", 3),
    Sketcher.Constraint("DistanceX", 1, 1, 1, 2, Q("8 mm")),
    Sketcher.Constraint("DistanceY", 0, 1, 0, 2, Q("10 mm")),
    Sketcher.Constraint("DistanceX", 0, 2, -1, 1, Q("15.985781 mm")),
    Sketcher.Constraint("DistanceY", 0, 2, -1, 1, Q("1.621269 mm")),
])
sketch13.setExpression("Constraints[8]", "Params.sketch13_width")
sketch13.setExpression("Constraints[9]", "Params.sketch13_height")
pocket8 = body.newObject("PartDesign::Pocket", "Pocket007")
pocket8.Profile = sketch13
pocket8.setExpression("Length", "Params.pocket8_length")
pocket8.Reversed = True

sketch14 = body.newObject("Sketcher::SketchObject", "Sketch013")
sketch14.AttachmentSupport = (doc.getObject("XZ_Plane"), [""])
sketch14.MapMode = "FlatFace"
sketch14.AttachmentOffset = App.Placement(V(0, 0, -13), App.Rotation())
sketch14.addGeometry([
    Part.LineSegment(V(-8.984605, -3.623769, 0), V(-8.984605, -1.623769, 0)),
    Part.LineSegment(V(-8.984605, -1.623769, 0), V(-7.484605, -1.623769, 0)),
    Part.LineSegment(V(-7.484605, -1.623769, 0), V(-7.484605, -3.623769, 0)),
    Part.LineSegment(V(-7.484605, -3.623769, 0), V(-8.984605, -3.623769, 0)),
    Part.LineSegment(V(-8.984605, -11.623769, 0), V(-8.984605, -9.623769, 0)),
    Part.LineSegment(V(-8.984605, -9.623769, 0), V(-7.484605, -9.623769, 0)),
    Part.LineSegment(V(-7.484605, -9.623769, 0), V(-7.484605, -11.623769, 0)),
    Part.LineSegment(V(-7.484605, -11.623769, 0), V(-8.984605, -11.623769, 0)),
], False)
sketch14.addConstraint([
    Sketcher.Constraint("Coincident", 0, 2, 1, 1),
    Sketcher.Constraint("Coincident", 1, 2, 2, 1),
    Sketcher.Constraint("Coincident", 2, 2, 3, 1),
    Sketcher.Constraint("Coincident", 3, 2, 0, 1),
    Sketcher.Constraint("Coincident", 4, 2, 5, 1),
    Sketcher.Constraint("Coincident", 5, 2, 6, 1),
    Sketcher.Constraint("Coincident", 6, 2, 7, 1),
    Sketcher.Constraint("Coincident", 7, 2, 4, 1),
    Sketcher.Constraint("Vertical", 0),
    Sketcher.Constraint("Horizontal", 1),
    Sketcher.Constraint("Vertical", 2),
    Sketcher.Constraint("Horizontal", 3),
    Sketcher.Constraint("Vertical", 4),
    Sketcher.Constraint("Horizontal", 5),
    Sketcher.Constraint("Vertical", 6),
    Sketcher.Constraint("Horizontal", 7),
    Sketcher.Constraint("Vertical", 3, 2, 4, 2),
    Sketcher.Constraint("Vertical", 2, 2, 5, 2),
    Sketcher.Constraint("Equal", 2, 4),
    Sketcher.Constraint("DistanceY", 0, 1, 0, 2, Q("2 mm")),
    Sketcher.Constraint("DistanceX", 1, 1, 1, 2, Q("1.5 mm")),
    Sketcher.Constraint("DistanceY", 4, 2, 3, 2, Q("6 mm")),
    Sketcher.Constraint("DistanceY", 0, 2, -1, 1, Q("1.623769 mm")),
    Sketcher.Constraint("DistanceX", 0, 2, -1, 1, Q("8.984605 mm")),
])
sketch14.setExpression("Constraints[19]", "Params.sketch14_height")
sketch14.setExpression("Constraints[20]", "Params.sketch14_width")
pad6 = body.newObject("PartDesign::Pad", "Pad005")
pad6.Profile = sketch14
pad6.setExpression("Length", "Params.pad6_length")

sketch15 = body.newObject("Sketcher::SketchObject", "Sketch014")
sketch15.AttachmentSupport = (doc.getObject("XZ_Plane"), [""])
sketch15.MapMode = "FlatFace"
sketch15.AttachmentOffset = App.Placement(V(0, 0, -13), App.Rotation())
sketch15.addGeometry([
    Part.LineSegment(V(-7.484605, -11.621269, 0), V(-7.484605, -9.861269, 0)),
    Part.LineSegment(V(-7.484605, -9.861269, 0), V(-6.984605, -9.861269, 0)),
    Part.LineSegment(V(-6.984605, -9.861269, 0), V(-6.984605, -11.621269, 0)),
    Part.LineSegment(V(-6.984605, -11.621269, 0), V(-7.484605, -11.621269, 0)),
    Part.LineSegment(V(-7.985781, -3.861269, 0), V(-7.985781, -3.623769, 0)),
    Part.LineSegment(V(-7.985781, -3.623769, 0), V(-7.485193, -3.623769, 0)),
    Part.LineSegment(V(-7.485193, -3.623769, 0), V(-7.485193, -1.623769, 0)),
    Part.LineSegment(V(-7.485193, -1.623769, 0), V(-6.984605, -1.623769, 0)),
    Part.LineSegment(V(-6.984605, -1.623769, 0), V(-6.984605, -3.861269, 0)),
    Part.LineSegment(V(-6.984605, -3.861269, 0), V(-7.985781, -3.861269, 0)),
], False)
sketch15.addConstraint([
    Sketcher.Constraint("Coincident", 0, 2, 1, 1),
    Sketcher.Constraint("Coincident", 1, 2, 2, 1),
    Sketcher.Constraint("Coincident", 2, 2, 3, 1),
    Sketcher.Constraint("Coincident", 3, 2, 0, 1),
    Sketcher.Constraint("Coincident", 4, 2, 5, 1),
    Sketcher.Constraint("Coincident", 5, 2, 6, 1),
    Sketcher.Constraint("Coincident", 6, 2, 7, 1),
    Sketcher.Constraint("Coincident", 7, 2, 8, 1),
    Sketcher.Constraint("Coincident", 8, 2, 9, 1),
    Sketcher.Constraint("Coincident", 9, 2, 4, 1),
    Sketcher.Constraint("Vertical", 0),
    Sketcher.Constraint("Horizontal", 1),
    Sketcher.Constraint("Vertical", 2),
    Sketcher.Constraint("Horizontal", 3),
    Sketcher.Constraint("Vertical", 4),
    Sketcher.Constraint("Horizontal", 5),
    Sketcher.Constraint("Vertical", 6),
    Sketcher.Constraint("Horizontal", 7),
    Sketcher.Constraint("Vertical", 8),
    Sketcher.Constraint("Horizontal", 9),
    Sketcher.Constraint("Vertical", 2, 2, 7, 2),
    Sketcher.Constraint("Equal", 5, 7),
    Sketcher.Constraint("DistanceY", 6, 1, 6, 2, Q("2 mm")),
    Sketcher.Constraint("DistanceX", 1, 1, 1, 2, Q("0.5 mm")),
    Sketcher.Constraint("DistanceY", 1, 2, 8, 2, Q("6 mm")),
    Sketcher.Constraint("DistanceY", 0, 1, 0, 2, Q("1.76 mm")),
    Sketcher.Constraint("DistanceY", 4, 1, 4, 2, Q("0.237501 mm")),
    Sketcher.Constraint("DistanceX", 5, 1, 5, 2, Q("0.500588 mm")),
    Sketcher.Constraint("DistanceY", 0, 2, -1, 1, Q("9.861269 mm")),
    Sketcher.Constraint("DistanceX", 4, 2, -1, 1, Q("7.985781 mm")),
])
sketch15.setExpression("Constraints[22]", "Params.sketch15_height")
sketch15.setExpression("Constraints[23]", "Params.sketch15_width")
sketch15.setExpression("Constraints[25]", "Params.sketch15_height2")
pocket9 = body.newObject("PartDesign::Pocket", "Pocket008")
pocket9.Profile = sketch15
pocket9.setExpression("Length", "Params.pocket9_length")
pocket9.Reversed = True

sketch16 = body.newObject("Sketcher::SketchObject", "Sketch015")
sketch16.AttachmentSupport = (doc.getObject("XZ_Plane"), [""])
sketch16.MapMode = "FlatFace"
sketch16.AttachmentOffset = App.Placement(V(0, 0, -13), App.Rotation())
sketch16.addGeometry([
    Part.LineSegment(V(-8.984605, -1.818611, 0), V(-8.984605, -0.957762, 0)),
    Part.LineSegment(V(-8.984605, -0.957762, 0), V(-7.707242, -0.957762, 0)),
    Part.LineSegment(V(-7.707242, -0.957762, 0), V(-7.707242, -1.818611, 0)),
    Part.LineSegment(V(-7.707242, -1.818611, 0), V(-8.984605, -1.818611, 0)),
], False)
sketch16.addConstraint([
    Sketcher.Constraint("Coincident", 0, 2, 1, 1),
    Sketcher.Constraint("Coincident", 1, 2, 2, 1),
    Sketcher.Constraint("Coincident", 2, 2, 3, 1),
    Sketcher.Constraint("Coincident", 3, 2, 0, 1),
    Sketcher.Constraint("Vertical", 0),
    Sketcher.Constraint("Horizontal", 1),
    Sketcher.Constraint("Vertical", 2),
    Sketcher.Constraint("Horizontal", 3),
    Sketcher.Constraint("DistanceY", 0, 1, 0, 2, Q("0.860849 mm")),
    Sketcher.Constraint("DistanceX", 1, 1, 1, 2, Q("1.277363 mm")),
    Sketcher.Constraint("DistanceY", 0, 2, -1, 1, Q("0.957762 mm")),
    Sketcher.Constraint("DistanceX", 0, 2, -1, 1, Q("8.984605 mm")),
])
pad7 = body.newObject("PartDesign::Pad", "Pad006")
pad7.Profile = sketch16
pad7.setExpression("Length", "Params.pad7_length")

sketch17 = body.newObject("Sketcher::SketchObject", "Sketch016")
sketch17.AttachmentSupport = (doc.getObject("YZ_Plane"), [""])
sketch17.MapMode = "FlatFace"
sketch17.AttachmentOffset = App.Placement(V(0, 0, 17.714219), App.Rotation())
sketch17.addGeometry([
    Part.LineSegment(V(13, -4.421385, 0), V(7, -4.421385, 0)),
    Part.ArcOfCircle(Part.Circle(V(7, -6.621269, 0), V(0, 0, 1), 2.199884), math.radians(90), math.radians(270)),
    Part.LineSegment(V(7, -8.821154, 0), V(13, -8.821154, 0)),
    Part.LineSegment(V(13, -8.821154, 0), V(13, -4.421385, 0)),
], False)
sketch17.addConstraint([
    Sketcher.Constraint("Tangent", 0, 2, 1, 1),
    Sketcher.Constraint("Tangent", 1, 2, 2, 1),
    Sketcher.Constraint("Coincident", 2, 2, 3, 1),
    Sketcher.Constraint("Coincident", 3, 2, 0, 1),
    Sketcher.Constraint("Horizontal", 0),
    Sketcher.Constraint("Horizontal", 2),
    Sketcher.Constraint("Vertical", 3),
    Sketcher.Constraint("DistanceX", 0, 2, 0, 1, Q("6 mm")),
    Sketcher.Constraint("DistanceX", -1, 1, 1, 3, Q("7 mm")),
    Sketcher.Constraint("Radius", 1, Q("2.199884 mm")),
    Sketcher.Constraint("DistanceY", 1, 3, -1, 1, Q("6.621269 mm")),
])
sketch17.setExpression("Constraints[7]", "Params.sketch17_width")
pocket10 = body.newObject("PartDesign::Pocket", "Pocket009")
pocket10.Profile = sketch17
pocket10.setExpression("Length", "Params.pocket10_length")

doc.recompute()
